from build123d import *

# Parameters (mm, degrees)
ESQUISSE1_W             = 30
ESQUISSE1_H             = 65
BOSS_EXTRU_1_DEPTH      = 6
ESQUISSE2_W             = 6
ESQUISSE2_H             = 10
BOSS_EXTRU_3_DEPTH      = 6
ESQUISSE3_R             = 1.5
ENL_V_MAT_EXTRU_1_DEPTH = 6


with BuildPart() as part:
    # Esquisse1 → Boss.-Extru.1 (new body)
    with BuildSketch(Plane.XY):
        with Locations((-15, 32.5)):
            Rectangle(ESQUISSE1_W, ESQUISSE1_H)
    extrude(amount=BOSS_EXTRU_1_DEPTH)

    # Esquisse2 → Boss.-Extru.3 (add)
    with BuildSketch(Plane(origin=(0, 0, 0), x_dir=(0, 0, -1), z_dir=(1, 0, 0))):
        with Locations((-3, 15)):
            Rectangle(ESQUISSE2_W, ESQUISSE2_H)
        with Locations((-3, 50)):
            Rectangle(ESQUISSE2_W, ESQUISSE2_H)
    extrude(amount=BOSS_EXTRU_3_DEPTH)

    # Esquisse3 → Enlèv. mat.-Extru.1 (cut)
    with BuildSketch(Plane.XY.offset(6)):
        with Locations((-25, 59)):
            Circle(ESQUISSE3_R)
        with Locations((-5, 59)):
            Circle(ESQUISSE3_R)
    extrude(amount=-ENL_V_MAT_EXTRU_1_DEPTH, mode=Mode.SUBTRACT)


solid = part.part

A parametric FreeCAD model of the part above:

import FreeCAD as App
import Part
import Sketcher
Q = App.Units.Quantity


def add_polygon(sketch, points):
    """Adds a closed chain of lines whose ends are joined by coincident constraints."""
    first, n = sketch.GeometryCount, len(points)
    for a, b in zip(points, points[1:] + points[:1]):
        sketch.addGeometry(Part.LineSegment(App.Vector(*a, 0), App.Vector(*b, 0)), False)
    for i in range(n):
        sketch.addConstraint(Sketcher.Constraint("Coincident", first + i, 2, first + (i + 1) % n, 1))

doc = App.newDocument("Part")
params = doc.addObject("Spreadsheet::Sheet", "Params")
for row, (alias, value) in enumerate([
    ("sketch1_width", "30 mm"),
    ("sketch1_height", "65 mm"),
    ("pad1_length", "6 mm"),
    ("sketch2_width", "10 mm"),
    ("sketch2_height", "6 mm"),
    ("pad2_length", "6 mm"),
    ("sketch3_diameter", "3 mm"),
    ("pocket1_length", "6 mm"),
], start=1):
    params.set(f"A{row}", alias)
    params.set(f"B{row}", "=" + value)
    params.setAlias(f"B{row}", alias)

body = doc.addObject("PartDesign::Body", "Body")

# Sketch on XY plane
sketch1 = body.newObject("Sketcher::SketchObject", "Sketch")
sketch1.AttachmentSupport = (doc.getObject("XY_Plane"), [""])
sketch1.MapMode = "FlatFace"
add_polygon(sketch1, [(-30, 65), (-30, 0), (0, 0), (0, 65)])  # lines 0-3
sketch1.addConstraint(Sketcher.Constraint("Vertical", 0))
sketch1.addConstraint(Sketcher.Constraint("Horizontal", 1))
sketch1.addConstraint(Sketcher.Constraint("Vertical", 2))
sketch1.addConstraint(Sketcher.Constraint("Horizontal", 3))
sketch1.addConstraint(Sketcher.Constraint("Coincident", 1, 2, -1, 1))
sketch1.addConstraint(Sketcher.Constraint("DistanceX", 1, 1, 1, 2, Q("30 mm")))
sketch1.addConstraint(Sketcher.Constraint("DistanceY", 0, 2, 0, 1, Q("65 mm")))
sketch1.setExpression("Constraints[9]", "Params.sketch1_width")
sketch1.setExpression("Constraints[10]", "Params.sketch1_height")
pad1 = body.newObject("PartDesign::Pad", "Pad")
pad1.Profile = sketch1
pad1.setExpression("Length", "Params.pad1_length")

# Sketch on YZ plane
sketch2 = body.newObject("Sketcher::SketchObject", "Sketch001")
sketch2.AttachmentSupport = (doc.getObject("YZ_Plane"), [""])
sketch2.MapMode = "FlatFace"
add_polygon(sketch2, [(20, 6), (10, 6), (10, 0), (20, 0)])  # lines 0-3
add_polygon(sketch2, [(55, 6), (45, 6), (45, 0), (55, 0)])  # lines 4-7
sketch2.addConstraint(Sketcher.Constraint("Horizontal", 0))
sketch2.addConstraint(Sketcher.Constraint("Vertical", 1))
sketch2.addConstraint(Sketcher.Constraint("Horizontal", 2))
sketch2.addConstraint(Sketcher.Constraint("Vertical", 3))
sketch2.addConstraint(Sketcher.Constraint("Horizontal", 4))
sketch2.addConstraint(Sketcher.Constraint("Vertical", 5))
sketch2.addConstraint(Sketcher.Constraint("Horizontal", 6))
sketch2.addConstraint(Sketcher.Constraint("Vertical", 7))
sketch2.addConstraint(Sketcher.Constraint("PointOnObject", 1, 2, -1))
sketch2.addConstraint(Sketcher.Constraint("PointOnObject", 5, 2, -1))
sketch2.addConstraint(Sketcher.Constraint("Horizontal", 3, 2, 4, 2))
sketch2.addConstraint(Sketcher.Constraint("Equal", 2, 4))
sketch2.addConstraint(Sketcher.Constraint("DistanceX", 0, 2, 0, 1, Q("10 mm")))
sketch2.addConstraint(Sketcher.Constraint("DistanceY", 1, 2, 1, 1, Q("6 mm")))
sketch2.addConstraint(Sketcher.Constraint("DistanceX", -1, 1, 0, 2, Q("10 mm")))
sketch2.addConstraint(Sketcher.Constraint("DistanceX", -1, 1, 4, 2, Q("45 mm")))
sketch2.setExpression("Constraints[20]", "Params.sketch2_width")
sketch2.setExpression("Constraints[21]", "Params.sketch2_height")
pad2 = body.newObject("PartDesign::Pad", "Pad001")
pad2.Profile = sketch2
pad2.setExpression("Length", "Params.pad2_length")

# Sketch on XY plane
sketch3 = body.newObject("Sketcher::SketchObject", "Sketch002")
sketch3.AttachmentSupport = (doc.getObject("XY_Plane"), [""])
sketch3.MapMode = "FlatFace"
sketch3.AttachmentOffset = App.Placement(App.Vector(0, 0, 6), App.Rotation())
sketch3.addGeometry(Part.Circle(App.Vector(-25, 59, 0), App.Vector(0, 0, 1), 1.5), False)
sketch3.addGeometry(Part.Circle(App.Vector(-5, 59, 0), App.Vector(0, 0, 1), 1.5), False)
sketch3.addConstraint(Sketcher.Constraint("Equal", 0, 1))
sketch3.addConstraint(Sketcher.Constraint("Horizontal", 0, 3, 1, 3))
sketch3.addConstraint(Sketcher.Constraint("Diameter", 0, Q("3 mm")))
sketch3.addConstraint(Sketcher.Constraint("DistanceX", 0, 3, -1, 1, Q("25 mm")))
sketch3.addConstraint(Sketcher.Constraint("DistanceY", -1, 1, 0, 3, Q("59 mm")))
sketch3.addConstraint(Sketcher.Constraint("DistanceX", 1, 3, -1, 1, Q("5 mm")))
sketch3.setExpression("Constraints[2]", "Params.sketch3_diameter")
pocket1 = body.newObject("PartDesign::Pocket", "Pocket")
pocket1.Profile = sketch3
pocket1.setExpression("Length", "Params.pocket1_length")

doc.recompute()
